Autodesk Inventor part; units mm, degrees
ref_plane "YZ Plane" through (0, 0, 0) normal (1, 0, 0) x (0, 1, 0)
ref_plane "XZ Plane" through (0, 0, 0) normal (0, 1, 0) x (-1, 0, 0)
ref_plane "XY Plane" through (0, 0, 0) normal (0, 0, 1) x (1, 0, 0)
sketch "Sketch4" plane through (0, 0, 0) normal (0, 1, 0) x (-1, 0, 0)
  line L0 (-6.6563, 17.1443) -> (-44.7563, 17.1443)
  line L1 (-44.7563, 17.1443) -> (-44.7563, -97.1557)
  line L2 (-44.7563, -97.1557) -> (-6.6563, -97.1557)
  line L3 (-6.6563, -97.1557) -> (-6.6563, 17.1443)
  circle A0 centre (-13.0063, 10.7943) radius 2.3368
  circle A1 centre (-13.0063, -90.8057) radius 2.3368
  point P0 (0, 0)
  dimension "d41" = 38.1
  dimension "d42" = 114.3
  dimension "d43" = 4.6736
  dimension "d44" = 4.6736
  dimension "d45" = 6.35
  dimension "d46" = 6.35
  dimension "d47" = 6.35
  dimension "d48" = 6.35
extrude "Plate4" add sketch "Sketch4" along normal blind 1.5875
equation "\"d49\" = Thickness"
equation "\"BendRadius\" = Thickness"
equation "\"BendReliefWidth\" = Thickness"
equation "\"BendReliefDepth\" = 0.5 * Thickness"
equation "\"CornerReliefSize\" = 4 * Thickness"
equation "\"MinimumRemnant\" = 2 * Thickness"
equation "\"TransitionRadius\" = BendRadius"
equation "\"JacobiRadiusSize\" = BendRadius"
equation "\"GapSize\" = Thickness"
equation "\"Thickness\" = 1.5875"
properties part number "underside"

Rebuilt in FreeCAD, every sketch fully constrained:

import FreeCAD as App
import Part
import Sketcher
from FreeCAD import Vector
Q = App.Units.Quantity

doc = App.newDocument("Part")
body = doc.addObject("PartDesign::Body", "Body")

# Sketch on XZ plane
sketch1 = body.newObject("Sketcher::SketchObject", "Sketch")
sketch1.AttachmentSupport = (doc.getObject("XZ_Plane"), [""])
sketch1.MapMode = "FlatFace"
sketch1.addGeometry(Part.LineSegment(Vector(6.6563, -97.1557, 0), Vector(6.6563, 17.1443, 0)), False)
sketch1.addGeometry(Part.LineSegment(Vector(6.6563, 17.1443, 0), Vector(44.7563, 17.1443, 0)), False)
sketch1.addGeometry(Part.LineSegment(Vector(44.7563, 17.1443, 0), Vector(44.7563, -97.1557, 0)), False)
sketch1.addGeometry(Part.LineSegment(Vector(44.7563, -97.1557, 0), Vector(6.6563, -97.1557, 0)), False)
sketch1.addGeometry(Part.Circle(Vector(13.0063, -90.8057, 0), Vector(0, 0, 1), 2.3368), False)
sketch1.addGeometry(Part.Circle(Vector(13.0063, 10.7943, 0), Vector(0, 0, 1), 2.3368), False)
sketch1.addConstraint(Sketcher.Constraint("Coincident", 0, 2, 1, 1))
sketch1.addConstraint(Sketcher.Constraint("Coincident", 1, 2, 2, 1))
sketch1.addConstraint(Sketcher.Constraint("Coincident", 2, 2, 3, 1))
sketch1.addConstraint(Sketcher.Constraint("Coincident", 3, 2, 0, 1))
sketch1.addConstraint(Sketcher.Constraint("Vertical", 0))
sketch1.addConstraint(Sketcher.Constraint("Horizontal", 1))
sketch1.addConstraint(Sketcher.Constraint("Vertical", 2))
sketch1.addConstraint(Sketcher.Constraint("Horizontal", 3))
sketch1.addConstraint(Sketcher.Constraint("Equal", 4, 5))
sketch1.addConstraint(Sketcher.Constraint("Vertical", 4, 3, 5, 3))
sketch1.addConstraint(Sketcher.Constraint("Diameter", 4, Q("0.184 in")))
sketch1.addConstraint(Sketcher.Constraint("DistanceX", 1, 1, 1, 2, Q("1.5 in")))
sketch1.addConstraint(Sketcher.Constraint("DistanceY", 0, 1, 0, 2, Q("4.5 in")))
sketch1.addConstraint(Sketcher.Constraint("DistanceX", 0, 2, 5, 3, Q("0.25 in")))
sketch1.addConstraint(Sketcher.Constraint("DistanceY", 5, 3, 0, 2, Q("0.25 in")))
sketch1.addConstraint(Sketcher.Constraint("DistanceY", 2, 2, 4, 3, Q("0.25 in")))
sketch1.addConstraint(Sketcher.Constraint("DistanceX", -1, 1, 4, 3, 13.0063))
sketch1.addConstraint(Sketcher.Constraint("DistanceY", 4, 3, -1, 1, 90.8057))
pad1 = body.newObject("PartDesign::Pad", "Pad")
pad1.Profile = sketch1
pad1.Length = Q("0.0625 in")
pad1.Reversed = True

doc.recompute()
